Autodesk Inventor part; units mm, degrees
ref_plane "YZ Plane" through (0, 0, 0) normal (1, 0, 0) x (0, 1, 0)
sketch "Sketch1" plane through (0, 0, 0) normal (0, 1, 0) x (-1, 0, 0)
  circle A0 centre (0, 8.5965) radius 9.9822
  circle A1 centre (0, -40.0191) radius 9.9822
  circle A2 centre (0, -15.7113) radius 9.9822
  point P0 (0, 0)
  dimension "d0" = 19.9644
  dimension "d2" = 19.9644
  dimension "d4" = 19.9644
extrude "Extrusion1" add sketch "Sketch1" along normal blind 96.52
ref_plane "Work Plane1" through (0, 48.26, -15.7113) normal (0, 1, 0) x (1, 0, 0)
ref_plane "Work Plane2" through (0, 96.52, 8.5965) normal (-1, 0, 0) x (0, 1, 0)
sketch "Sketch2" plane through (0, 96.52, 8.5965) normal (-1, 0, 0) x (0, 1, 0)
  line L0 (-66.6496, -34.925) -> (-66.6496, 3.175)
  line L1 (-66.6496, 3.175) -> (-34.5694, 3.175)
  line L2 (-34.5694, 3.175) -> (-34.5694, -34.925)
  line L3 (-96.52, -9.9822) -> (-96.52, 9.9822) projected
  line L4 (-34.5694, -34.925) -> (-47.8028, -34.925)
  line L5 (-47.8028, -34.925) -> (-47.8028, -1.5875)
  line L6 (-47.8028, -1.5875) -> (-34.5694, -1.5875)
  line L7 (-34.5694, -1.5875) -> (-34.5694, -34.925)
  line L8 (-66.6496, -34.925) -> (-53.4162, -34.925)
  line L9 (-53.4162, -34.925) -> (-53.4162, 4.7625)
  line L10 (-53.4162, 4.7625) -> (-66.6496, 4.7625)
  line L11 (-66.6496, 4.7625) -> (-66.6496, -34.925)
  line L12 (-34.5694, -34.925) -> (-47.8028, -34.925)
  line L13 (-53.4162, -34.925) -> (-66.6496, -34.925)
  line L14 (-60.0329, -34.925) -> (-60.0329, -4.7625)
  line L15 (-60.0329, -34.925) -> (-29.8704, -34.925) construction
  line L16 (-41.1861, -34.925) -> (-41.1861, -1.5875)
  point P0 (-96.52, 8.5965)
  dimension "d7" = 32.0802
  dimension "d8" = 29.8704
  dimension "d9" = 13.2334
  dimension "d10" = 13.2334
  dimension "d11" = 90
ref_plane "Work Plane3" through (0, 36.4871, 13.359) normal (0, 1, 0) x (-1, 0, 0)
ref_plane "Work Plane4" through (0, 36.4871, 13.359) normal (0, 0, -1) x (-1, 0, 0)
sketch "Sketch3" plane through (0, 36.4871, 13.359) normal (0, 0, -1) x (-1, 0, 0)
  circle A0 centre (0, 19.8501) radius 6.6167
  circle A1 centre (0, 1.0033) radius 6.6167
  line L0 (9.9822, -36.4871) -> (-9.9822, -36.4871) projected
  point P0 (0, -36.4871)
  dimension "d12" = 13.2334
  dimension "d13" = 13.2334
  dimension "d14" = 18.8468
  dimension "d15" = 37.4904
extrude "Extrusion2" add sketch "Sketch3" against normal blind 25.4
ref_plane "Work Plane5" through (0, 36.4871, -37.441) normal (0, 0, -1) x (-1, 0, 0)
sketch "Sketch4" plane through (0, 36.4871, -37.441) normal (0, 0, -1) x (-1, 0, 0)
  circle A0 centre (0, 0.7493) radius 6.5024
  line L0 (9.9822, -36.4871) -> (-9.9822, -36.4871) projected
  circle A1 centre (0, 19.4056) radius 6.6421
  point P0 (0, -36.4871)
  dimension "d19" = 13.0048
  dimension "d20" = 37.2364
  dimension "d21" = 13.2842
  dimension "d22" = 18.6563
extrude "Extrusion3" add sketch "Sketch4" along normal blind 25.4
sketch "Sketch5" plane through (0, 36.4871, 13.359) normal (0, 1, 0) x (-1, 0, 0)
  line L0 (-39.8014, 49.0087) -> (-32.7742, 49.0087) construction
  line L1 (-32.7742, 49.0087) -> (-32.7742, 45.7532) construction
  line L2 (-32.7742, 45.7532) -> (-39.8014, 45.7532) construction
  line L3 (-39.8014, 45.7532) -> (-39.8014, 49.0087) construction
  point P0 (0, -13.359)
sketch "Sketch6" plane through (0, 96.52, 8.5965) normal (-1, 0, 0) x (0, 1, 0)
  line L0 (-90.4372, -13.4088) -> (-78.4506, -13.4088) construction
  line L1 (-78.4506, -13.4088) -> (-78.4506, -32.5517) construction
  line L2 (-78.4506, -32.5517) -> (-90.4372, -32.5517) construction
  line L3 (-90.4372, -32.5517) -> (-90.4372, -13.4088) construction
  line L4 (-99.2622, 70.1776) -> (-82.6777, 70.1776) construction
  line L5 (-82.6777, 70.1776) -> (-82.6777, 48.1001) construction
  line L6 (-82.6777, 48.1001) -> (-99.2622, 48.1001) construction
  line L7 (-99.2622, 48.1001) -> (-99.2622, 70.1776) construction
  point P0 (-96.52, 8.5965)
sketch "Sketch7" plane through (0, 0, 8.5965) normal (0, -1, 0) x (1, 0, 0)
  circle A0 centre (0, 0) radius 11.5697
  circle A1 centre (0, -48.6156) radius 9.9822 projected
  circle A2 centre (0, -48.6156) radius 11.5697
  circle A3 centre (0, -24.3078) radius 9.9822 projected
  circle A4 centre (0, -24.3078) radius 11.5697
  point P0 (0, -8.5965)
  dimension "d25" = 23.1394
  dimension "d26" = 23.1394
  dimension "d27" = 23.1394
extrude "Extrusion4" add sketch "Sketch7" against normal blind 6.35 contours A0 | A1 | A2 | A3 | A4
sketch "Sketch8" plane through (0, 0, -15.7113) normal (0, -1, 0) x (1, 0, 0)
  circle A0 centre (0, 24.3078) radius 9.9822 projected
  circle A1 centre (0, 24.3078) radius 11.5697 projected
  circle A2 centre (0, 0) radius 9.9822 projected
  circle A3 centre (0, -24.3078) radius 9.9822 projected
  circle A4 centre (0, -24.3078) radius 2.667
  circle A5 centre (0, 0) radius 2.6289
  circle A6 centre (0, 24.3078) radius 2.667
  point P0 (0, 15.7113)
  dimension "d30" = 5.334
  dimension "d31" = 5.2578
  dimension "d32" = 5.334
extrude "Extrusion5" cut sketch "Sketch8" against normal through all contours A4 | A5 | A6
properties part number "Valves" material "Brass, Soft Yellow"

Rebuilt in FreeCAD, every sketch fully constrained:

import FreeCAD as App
import Part
import Sketcher
Q = App.Units.Quantity

doc = App.newDocument("Part")
body = doc.addObject("PartDesign::Body", "Body")
body.AllowCompound = True

sketch1 = doc.addObject("Sketcher::SketchObject", "Sketch")
body.addObject(sketch1)
sketch1.AttachmentSupport = (doc.XZ_Plane, [""])
sketch1.MapMode = "FlatFace"
sketch1.addGeometry([
    Part.Circle(App.Vector(0, 8.5965, 0), App.Vector(0, 0, 1), 9.9822),
    Part.Circle(App.Vector(0, -40.0191, 0), App.Vector(0, 0, 1), 9.9822),
    Part.Circle(App.Vector(0, -15.7113, 0), App.Vector(0, 0, 1), 9.9822),
], False)
sketch1.addConstraint([
    Sketcher.Constraint("Equal", 0, 1),
    Sketcher.Constraint("Equal", 1, 2),
    Sketcher.Constraint("PointOnObject", 0, 3, -2),
    Sketcher.Constraint("PointOnObject", 1, 3, -2),
    Sketcher.Constraint("PointOnObject", 2, 3, -2),
    Sketcher.Constraint("Diameter", 0, Q("0.786 in")),
    Sketcher.Constraint("DistanceY", 1, 3, 0, 3, Q("1.914 in")),
    Sketcher.Constraint("DistanceY", 2, 3, 0, 3, Q("0.957 in")),
    Sketcher.Constraint("DistanceY", -1, 1, 0, 3, Q("8.5965 mm")),
])
pad1 = doc.addObject("PartDesign::Pad", "Pad")
body.addObject(pad1)
pad1.Profile = sketch1
pad1.Length = Q("3.8 in")
pad1.Reversed = True

sketch2 = doc.addObject("Sketcher::SketchObject", "Sketch001")
body.addObject(sketch2)
sketch2.AttachmentSupport = (doc.XY_Plane, [""])
sketch2.MapMode = "FlatFace"
sketch2.AttachmentOffset = App.Placement(App.Vector(0, 0, 13.359), App.Rotation())
sketch2.addGeometry([
    Part.Circle(App.Vector(0, 56.3372, 0), App.Vector(0, 0, 1), 6.6167),
    Part.Circle(App.Vector(0, 37.4904, 0), App.Vector(0, 0, 1), 6.6167),
], False)
sketch2.addConstraint([
    Sketcher.Constraint("Equal", 0, 1),
    Sketcher.Constraint("PointOnObject", 0, 3, -2),
    Sketcher.Constraint("PointOnObject", 1, 3, -2),
    Sketcher.Constraint("Diameter", 0, Q("0.521 in")),
    Sketcher.Constraint("DistanceY", -1, 1, 1, 3, Q("1.476 in")),
    Sketcher.Constraint("DistanceY", 1, 3, 0, 3, Q("0.742 in")),
])
pad2 = doc.addObject("PartDesign::Pad", "Pad001")
body.addObject(pad2)
pad2.Profile = sketch2
pad2.Length = Q("1 in")

sketch3 = doc.addObject("Sketcher::SketchObject", "Sketch002")
body.addObject(sketch3)
sketch3.AttachmentSupport = (doc.XY_Plane, [""])
sketch3.MapMode = "FlatFace"
sketch3.AttachmentOffset = App.Placement(App.Vector(0, 0, -37.441), App.Rotation())
sketch3.addGeometry([
    Part.Circle(App.Vector(0, 37.2364, 0), App.Vector(0, 0, 1), 6.5024),
    Part.Circle(App.Vector(0, 55.8927, 0), App.Vector(0, 0, 1), 6.6421),
], False)
sketch3.addConstraint([
    Sketcher.Constraint("PointOnObject", 0, 3, -2),
    Sketcher.Constraint("PointOnObject", 1, 3, -2),
    Sketcher.Constraint("Diameter", 0, Q("0.512 in")),
    Sketcher.Constraint("Diameter", 1, Q("0.523 in")),
    Sketcher.Constraint("DistanceY", -1, 1, 0, 3, Q("1.466 in")),
    Sketcher.Constraint("DistanceY", 0, 3, 1, 3, Q("0.7345 in")),
])
pad3 = doc.addObject("PartDesign::Pad", "Pad002")
body.addObject(pad3)
pad3.Profile = sketch3
pad3.Length = Q("1 in")
pad3.Reversed = True

sketch4 = doc.addObject("Sketcher::SketchObject", "Sketch003")
body.addObject(sketch4)
sketch4.AttachmentSupport = (doc.XZ_Plane, [""])
sketch4.MapMode = "FlatFace"
sketch4.addGeometry([
    Part.Circle(App.Vector(0, 8.5965, 0), App.Vector(0, 0, 1), 11.5697),
    Part.Circle(App.Vector(0, -40.0191, 0), App.Vector(0, 0, 1), 11.5697),
    Part.Circle(App.Vector(0, -15.7113, 0), App.Vector(0, 0, 1), 11.5697),
], False)
sketch4.addConstraint([
    Sketcher.Constraint("Equal", 0, 1),
    Sketcher.Constraint("Equal", 1, 2),
    Sketcher.Constraint("PointOnObject", 0, 3, -2),
    Sketcher.Constraint("PointOnObject", 1, 3, -2),
    Sketcher.Constraint("PointOnObject", 2, 3, -2),
    Sketcher.Constraint("Diameter", 0, Q("0.911 in")),
    Sketcher.Constraint("DistanceY", 1, 3, 0, 3, Q("1.914 in")),
    Sketcher.Constraint("DistanceY", 2, 3, 0, 3, Q("0.957 in")),
    Sketcher.Constraint("DistanceY", -1, 1, 0, 3, Q("8.5965 mm")),
])
pad4 = doc.addObject("PartDesign::Pad", "Pad003")
body.addObject(pad4)
pad4.Profile = sketch4
pad4.Length = Q("0.25 in")
pad4.Reversed = True

sketch5 = doc.addObject("Sketcher::SketchObject", "Sketch004")
body.addObject(sketch5)
sketch5.AttachmentSupport = (doc.XZ_Plane, [""])
sketch5.MapMode = "FlatFace"
sketch5.addGeometry([
    Part.Circle(App.Vector(0, -40.0191, 0), App.Vector(0, 0, 1), 2.667),
    Part.Circle(App.Vector(0, -15.7113, 0), App.Vector(0, 0, 1), 2.6289),
    Part.Circle(App.Vector(0, 8.5965, 0), App.Vector(0, 0, 1), 2.667),
], False)
sketch5.addConstraint([
    Sketcher.Constraint("Equal", 0, 2),
    Sketcher.Constraint("PointOnObject", 0, 3, -2),
    Sketcher.Constraint("PointOnObject", 1, 3, -2),
    Sketcher.Constraint("PointOnObject", 2, 3, -2),
    Sketcher.Constraint("Diameter", 0, Q("0.21 in")),
    Sketcher.Constraint("Diameter", 1, Q("0.207 in")),
    Sketcher.Constraint("DistanceY", 0, 3, 1, 3, Q("0.957 in")),
    Sketcher.Constraint("DistanceY", 1, 3, 2, 3, Q("0.957 in")),
    Sketcher.Constraint("DistanceY", 0, 3, -1, 1, Q("40.019 mm")),
])
pocket1 = doc.addObject("PartDesign::Pocket", "Pocket")
body.addObject(pocket1)
pocket1.Profile = sketch5
pocket1.Type = "ThroughAll"

doc.recompute()
